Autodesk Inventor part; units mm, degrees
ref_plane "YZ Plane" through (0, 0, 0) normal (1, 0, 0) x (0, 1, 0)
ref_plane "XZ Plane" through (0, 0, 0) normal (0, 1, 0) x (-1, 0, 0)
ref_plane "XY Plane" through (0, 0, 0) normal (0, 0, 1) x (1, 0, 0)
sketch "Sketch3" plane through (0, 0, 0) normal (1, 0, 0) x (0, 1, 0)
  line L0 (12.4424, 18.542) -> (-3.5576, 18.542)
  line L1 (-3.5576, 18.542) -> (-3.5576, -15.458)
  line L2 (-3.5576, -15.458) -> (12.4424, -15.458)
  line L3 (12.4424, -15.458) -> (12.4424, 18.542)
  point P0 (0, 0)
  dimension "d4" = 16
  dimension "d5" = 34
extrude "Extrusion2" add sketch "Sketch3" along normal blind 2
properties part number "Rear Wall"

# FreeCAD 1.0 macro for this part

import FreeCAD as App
import Part
import Sketcher
from FreeCAD import Vector


def add_polygon(sketch, points):
    """Adds a closed chain of lines whose ends are joined by coincident constraints."""
    first, n = sketch.GeometryCount, len(points)
    for a, b in zip(points, points[1:] + points[:1]):
        sketch.addGeometry(Part.LineSegment(App.Vector(*a, 0), App.Vector(*b, 0)), False)
    for i in range(n):
        sketch.addConstraint(Sketcher.Constraint("Coincident", first + i, 2, first + (i + 1) % n, 1))

doc = App.newDocument("Part")
body = doc.addObject("PartDesign::Body", "Body")

# Sketch on YZ plane
sketch1 = body.newObject("Sketcher::SketchObject", "Sketch")
sketch1.AttachmentSupport = (doc.getObject("YZ_Plane"), [""])
sketch1.MapMode = "FlatFace"
add_polygon(sketch1, [(12, -15), (12, 19), (-4, 19), (-4, -15)])  # lines 0-3
sketch1.addConstraint(Sketcher.Constraint("Vertical", 0))
sketch1.addConstraint(Sketcher.Constraint("Horizontal", 1))
sketch1.addConstraint(Sketcher.Constraint("Vertical", 2))
sketch1.addConstraint(Sketcher.Constraint("Horizontal", 3))
sketch1.addConstraint(Sketcher.Constraint("DistanceX", 1, 2, 1, 1, 16.0))
sketch1.addConstraint(Sketcher.Constraint("DistanceY", 0, 1, 0, 2, 34.0))
sketch1.addConstraint(Sketcher.Constraint("DistanceY", -1, 1, 0, 2, 18.542))
sketch1.addConstraint(Sketcher.Constraint("DistanceX", -1, 1, 0, 2, 12.4424))
pad1 = body.newObject("PartDesign::Pad", "Pad")
pad1.Profile = sketch1
pad1.Length = 2

doc.recompute()
